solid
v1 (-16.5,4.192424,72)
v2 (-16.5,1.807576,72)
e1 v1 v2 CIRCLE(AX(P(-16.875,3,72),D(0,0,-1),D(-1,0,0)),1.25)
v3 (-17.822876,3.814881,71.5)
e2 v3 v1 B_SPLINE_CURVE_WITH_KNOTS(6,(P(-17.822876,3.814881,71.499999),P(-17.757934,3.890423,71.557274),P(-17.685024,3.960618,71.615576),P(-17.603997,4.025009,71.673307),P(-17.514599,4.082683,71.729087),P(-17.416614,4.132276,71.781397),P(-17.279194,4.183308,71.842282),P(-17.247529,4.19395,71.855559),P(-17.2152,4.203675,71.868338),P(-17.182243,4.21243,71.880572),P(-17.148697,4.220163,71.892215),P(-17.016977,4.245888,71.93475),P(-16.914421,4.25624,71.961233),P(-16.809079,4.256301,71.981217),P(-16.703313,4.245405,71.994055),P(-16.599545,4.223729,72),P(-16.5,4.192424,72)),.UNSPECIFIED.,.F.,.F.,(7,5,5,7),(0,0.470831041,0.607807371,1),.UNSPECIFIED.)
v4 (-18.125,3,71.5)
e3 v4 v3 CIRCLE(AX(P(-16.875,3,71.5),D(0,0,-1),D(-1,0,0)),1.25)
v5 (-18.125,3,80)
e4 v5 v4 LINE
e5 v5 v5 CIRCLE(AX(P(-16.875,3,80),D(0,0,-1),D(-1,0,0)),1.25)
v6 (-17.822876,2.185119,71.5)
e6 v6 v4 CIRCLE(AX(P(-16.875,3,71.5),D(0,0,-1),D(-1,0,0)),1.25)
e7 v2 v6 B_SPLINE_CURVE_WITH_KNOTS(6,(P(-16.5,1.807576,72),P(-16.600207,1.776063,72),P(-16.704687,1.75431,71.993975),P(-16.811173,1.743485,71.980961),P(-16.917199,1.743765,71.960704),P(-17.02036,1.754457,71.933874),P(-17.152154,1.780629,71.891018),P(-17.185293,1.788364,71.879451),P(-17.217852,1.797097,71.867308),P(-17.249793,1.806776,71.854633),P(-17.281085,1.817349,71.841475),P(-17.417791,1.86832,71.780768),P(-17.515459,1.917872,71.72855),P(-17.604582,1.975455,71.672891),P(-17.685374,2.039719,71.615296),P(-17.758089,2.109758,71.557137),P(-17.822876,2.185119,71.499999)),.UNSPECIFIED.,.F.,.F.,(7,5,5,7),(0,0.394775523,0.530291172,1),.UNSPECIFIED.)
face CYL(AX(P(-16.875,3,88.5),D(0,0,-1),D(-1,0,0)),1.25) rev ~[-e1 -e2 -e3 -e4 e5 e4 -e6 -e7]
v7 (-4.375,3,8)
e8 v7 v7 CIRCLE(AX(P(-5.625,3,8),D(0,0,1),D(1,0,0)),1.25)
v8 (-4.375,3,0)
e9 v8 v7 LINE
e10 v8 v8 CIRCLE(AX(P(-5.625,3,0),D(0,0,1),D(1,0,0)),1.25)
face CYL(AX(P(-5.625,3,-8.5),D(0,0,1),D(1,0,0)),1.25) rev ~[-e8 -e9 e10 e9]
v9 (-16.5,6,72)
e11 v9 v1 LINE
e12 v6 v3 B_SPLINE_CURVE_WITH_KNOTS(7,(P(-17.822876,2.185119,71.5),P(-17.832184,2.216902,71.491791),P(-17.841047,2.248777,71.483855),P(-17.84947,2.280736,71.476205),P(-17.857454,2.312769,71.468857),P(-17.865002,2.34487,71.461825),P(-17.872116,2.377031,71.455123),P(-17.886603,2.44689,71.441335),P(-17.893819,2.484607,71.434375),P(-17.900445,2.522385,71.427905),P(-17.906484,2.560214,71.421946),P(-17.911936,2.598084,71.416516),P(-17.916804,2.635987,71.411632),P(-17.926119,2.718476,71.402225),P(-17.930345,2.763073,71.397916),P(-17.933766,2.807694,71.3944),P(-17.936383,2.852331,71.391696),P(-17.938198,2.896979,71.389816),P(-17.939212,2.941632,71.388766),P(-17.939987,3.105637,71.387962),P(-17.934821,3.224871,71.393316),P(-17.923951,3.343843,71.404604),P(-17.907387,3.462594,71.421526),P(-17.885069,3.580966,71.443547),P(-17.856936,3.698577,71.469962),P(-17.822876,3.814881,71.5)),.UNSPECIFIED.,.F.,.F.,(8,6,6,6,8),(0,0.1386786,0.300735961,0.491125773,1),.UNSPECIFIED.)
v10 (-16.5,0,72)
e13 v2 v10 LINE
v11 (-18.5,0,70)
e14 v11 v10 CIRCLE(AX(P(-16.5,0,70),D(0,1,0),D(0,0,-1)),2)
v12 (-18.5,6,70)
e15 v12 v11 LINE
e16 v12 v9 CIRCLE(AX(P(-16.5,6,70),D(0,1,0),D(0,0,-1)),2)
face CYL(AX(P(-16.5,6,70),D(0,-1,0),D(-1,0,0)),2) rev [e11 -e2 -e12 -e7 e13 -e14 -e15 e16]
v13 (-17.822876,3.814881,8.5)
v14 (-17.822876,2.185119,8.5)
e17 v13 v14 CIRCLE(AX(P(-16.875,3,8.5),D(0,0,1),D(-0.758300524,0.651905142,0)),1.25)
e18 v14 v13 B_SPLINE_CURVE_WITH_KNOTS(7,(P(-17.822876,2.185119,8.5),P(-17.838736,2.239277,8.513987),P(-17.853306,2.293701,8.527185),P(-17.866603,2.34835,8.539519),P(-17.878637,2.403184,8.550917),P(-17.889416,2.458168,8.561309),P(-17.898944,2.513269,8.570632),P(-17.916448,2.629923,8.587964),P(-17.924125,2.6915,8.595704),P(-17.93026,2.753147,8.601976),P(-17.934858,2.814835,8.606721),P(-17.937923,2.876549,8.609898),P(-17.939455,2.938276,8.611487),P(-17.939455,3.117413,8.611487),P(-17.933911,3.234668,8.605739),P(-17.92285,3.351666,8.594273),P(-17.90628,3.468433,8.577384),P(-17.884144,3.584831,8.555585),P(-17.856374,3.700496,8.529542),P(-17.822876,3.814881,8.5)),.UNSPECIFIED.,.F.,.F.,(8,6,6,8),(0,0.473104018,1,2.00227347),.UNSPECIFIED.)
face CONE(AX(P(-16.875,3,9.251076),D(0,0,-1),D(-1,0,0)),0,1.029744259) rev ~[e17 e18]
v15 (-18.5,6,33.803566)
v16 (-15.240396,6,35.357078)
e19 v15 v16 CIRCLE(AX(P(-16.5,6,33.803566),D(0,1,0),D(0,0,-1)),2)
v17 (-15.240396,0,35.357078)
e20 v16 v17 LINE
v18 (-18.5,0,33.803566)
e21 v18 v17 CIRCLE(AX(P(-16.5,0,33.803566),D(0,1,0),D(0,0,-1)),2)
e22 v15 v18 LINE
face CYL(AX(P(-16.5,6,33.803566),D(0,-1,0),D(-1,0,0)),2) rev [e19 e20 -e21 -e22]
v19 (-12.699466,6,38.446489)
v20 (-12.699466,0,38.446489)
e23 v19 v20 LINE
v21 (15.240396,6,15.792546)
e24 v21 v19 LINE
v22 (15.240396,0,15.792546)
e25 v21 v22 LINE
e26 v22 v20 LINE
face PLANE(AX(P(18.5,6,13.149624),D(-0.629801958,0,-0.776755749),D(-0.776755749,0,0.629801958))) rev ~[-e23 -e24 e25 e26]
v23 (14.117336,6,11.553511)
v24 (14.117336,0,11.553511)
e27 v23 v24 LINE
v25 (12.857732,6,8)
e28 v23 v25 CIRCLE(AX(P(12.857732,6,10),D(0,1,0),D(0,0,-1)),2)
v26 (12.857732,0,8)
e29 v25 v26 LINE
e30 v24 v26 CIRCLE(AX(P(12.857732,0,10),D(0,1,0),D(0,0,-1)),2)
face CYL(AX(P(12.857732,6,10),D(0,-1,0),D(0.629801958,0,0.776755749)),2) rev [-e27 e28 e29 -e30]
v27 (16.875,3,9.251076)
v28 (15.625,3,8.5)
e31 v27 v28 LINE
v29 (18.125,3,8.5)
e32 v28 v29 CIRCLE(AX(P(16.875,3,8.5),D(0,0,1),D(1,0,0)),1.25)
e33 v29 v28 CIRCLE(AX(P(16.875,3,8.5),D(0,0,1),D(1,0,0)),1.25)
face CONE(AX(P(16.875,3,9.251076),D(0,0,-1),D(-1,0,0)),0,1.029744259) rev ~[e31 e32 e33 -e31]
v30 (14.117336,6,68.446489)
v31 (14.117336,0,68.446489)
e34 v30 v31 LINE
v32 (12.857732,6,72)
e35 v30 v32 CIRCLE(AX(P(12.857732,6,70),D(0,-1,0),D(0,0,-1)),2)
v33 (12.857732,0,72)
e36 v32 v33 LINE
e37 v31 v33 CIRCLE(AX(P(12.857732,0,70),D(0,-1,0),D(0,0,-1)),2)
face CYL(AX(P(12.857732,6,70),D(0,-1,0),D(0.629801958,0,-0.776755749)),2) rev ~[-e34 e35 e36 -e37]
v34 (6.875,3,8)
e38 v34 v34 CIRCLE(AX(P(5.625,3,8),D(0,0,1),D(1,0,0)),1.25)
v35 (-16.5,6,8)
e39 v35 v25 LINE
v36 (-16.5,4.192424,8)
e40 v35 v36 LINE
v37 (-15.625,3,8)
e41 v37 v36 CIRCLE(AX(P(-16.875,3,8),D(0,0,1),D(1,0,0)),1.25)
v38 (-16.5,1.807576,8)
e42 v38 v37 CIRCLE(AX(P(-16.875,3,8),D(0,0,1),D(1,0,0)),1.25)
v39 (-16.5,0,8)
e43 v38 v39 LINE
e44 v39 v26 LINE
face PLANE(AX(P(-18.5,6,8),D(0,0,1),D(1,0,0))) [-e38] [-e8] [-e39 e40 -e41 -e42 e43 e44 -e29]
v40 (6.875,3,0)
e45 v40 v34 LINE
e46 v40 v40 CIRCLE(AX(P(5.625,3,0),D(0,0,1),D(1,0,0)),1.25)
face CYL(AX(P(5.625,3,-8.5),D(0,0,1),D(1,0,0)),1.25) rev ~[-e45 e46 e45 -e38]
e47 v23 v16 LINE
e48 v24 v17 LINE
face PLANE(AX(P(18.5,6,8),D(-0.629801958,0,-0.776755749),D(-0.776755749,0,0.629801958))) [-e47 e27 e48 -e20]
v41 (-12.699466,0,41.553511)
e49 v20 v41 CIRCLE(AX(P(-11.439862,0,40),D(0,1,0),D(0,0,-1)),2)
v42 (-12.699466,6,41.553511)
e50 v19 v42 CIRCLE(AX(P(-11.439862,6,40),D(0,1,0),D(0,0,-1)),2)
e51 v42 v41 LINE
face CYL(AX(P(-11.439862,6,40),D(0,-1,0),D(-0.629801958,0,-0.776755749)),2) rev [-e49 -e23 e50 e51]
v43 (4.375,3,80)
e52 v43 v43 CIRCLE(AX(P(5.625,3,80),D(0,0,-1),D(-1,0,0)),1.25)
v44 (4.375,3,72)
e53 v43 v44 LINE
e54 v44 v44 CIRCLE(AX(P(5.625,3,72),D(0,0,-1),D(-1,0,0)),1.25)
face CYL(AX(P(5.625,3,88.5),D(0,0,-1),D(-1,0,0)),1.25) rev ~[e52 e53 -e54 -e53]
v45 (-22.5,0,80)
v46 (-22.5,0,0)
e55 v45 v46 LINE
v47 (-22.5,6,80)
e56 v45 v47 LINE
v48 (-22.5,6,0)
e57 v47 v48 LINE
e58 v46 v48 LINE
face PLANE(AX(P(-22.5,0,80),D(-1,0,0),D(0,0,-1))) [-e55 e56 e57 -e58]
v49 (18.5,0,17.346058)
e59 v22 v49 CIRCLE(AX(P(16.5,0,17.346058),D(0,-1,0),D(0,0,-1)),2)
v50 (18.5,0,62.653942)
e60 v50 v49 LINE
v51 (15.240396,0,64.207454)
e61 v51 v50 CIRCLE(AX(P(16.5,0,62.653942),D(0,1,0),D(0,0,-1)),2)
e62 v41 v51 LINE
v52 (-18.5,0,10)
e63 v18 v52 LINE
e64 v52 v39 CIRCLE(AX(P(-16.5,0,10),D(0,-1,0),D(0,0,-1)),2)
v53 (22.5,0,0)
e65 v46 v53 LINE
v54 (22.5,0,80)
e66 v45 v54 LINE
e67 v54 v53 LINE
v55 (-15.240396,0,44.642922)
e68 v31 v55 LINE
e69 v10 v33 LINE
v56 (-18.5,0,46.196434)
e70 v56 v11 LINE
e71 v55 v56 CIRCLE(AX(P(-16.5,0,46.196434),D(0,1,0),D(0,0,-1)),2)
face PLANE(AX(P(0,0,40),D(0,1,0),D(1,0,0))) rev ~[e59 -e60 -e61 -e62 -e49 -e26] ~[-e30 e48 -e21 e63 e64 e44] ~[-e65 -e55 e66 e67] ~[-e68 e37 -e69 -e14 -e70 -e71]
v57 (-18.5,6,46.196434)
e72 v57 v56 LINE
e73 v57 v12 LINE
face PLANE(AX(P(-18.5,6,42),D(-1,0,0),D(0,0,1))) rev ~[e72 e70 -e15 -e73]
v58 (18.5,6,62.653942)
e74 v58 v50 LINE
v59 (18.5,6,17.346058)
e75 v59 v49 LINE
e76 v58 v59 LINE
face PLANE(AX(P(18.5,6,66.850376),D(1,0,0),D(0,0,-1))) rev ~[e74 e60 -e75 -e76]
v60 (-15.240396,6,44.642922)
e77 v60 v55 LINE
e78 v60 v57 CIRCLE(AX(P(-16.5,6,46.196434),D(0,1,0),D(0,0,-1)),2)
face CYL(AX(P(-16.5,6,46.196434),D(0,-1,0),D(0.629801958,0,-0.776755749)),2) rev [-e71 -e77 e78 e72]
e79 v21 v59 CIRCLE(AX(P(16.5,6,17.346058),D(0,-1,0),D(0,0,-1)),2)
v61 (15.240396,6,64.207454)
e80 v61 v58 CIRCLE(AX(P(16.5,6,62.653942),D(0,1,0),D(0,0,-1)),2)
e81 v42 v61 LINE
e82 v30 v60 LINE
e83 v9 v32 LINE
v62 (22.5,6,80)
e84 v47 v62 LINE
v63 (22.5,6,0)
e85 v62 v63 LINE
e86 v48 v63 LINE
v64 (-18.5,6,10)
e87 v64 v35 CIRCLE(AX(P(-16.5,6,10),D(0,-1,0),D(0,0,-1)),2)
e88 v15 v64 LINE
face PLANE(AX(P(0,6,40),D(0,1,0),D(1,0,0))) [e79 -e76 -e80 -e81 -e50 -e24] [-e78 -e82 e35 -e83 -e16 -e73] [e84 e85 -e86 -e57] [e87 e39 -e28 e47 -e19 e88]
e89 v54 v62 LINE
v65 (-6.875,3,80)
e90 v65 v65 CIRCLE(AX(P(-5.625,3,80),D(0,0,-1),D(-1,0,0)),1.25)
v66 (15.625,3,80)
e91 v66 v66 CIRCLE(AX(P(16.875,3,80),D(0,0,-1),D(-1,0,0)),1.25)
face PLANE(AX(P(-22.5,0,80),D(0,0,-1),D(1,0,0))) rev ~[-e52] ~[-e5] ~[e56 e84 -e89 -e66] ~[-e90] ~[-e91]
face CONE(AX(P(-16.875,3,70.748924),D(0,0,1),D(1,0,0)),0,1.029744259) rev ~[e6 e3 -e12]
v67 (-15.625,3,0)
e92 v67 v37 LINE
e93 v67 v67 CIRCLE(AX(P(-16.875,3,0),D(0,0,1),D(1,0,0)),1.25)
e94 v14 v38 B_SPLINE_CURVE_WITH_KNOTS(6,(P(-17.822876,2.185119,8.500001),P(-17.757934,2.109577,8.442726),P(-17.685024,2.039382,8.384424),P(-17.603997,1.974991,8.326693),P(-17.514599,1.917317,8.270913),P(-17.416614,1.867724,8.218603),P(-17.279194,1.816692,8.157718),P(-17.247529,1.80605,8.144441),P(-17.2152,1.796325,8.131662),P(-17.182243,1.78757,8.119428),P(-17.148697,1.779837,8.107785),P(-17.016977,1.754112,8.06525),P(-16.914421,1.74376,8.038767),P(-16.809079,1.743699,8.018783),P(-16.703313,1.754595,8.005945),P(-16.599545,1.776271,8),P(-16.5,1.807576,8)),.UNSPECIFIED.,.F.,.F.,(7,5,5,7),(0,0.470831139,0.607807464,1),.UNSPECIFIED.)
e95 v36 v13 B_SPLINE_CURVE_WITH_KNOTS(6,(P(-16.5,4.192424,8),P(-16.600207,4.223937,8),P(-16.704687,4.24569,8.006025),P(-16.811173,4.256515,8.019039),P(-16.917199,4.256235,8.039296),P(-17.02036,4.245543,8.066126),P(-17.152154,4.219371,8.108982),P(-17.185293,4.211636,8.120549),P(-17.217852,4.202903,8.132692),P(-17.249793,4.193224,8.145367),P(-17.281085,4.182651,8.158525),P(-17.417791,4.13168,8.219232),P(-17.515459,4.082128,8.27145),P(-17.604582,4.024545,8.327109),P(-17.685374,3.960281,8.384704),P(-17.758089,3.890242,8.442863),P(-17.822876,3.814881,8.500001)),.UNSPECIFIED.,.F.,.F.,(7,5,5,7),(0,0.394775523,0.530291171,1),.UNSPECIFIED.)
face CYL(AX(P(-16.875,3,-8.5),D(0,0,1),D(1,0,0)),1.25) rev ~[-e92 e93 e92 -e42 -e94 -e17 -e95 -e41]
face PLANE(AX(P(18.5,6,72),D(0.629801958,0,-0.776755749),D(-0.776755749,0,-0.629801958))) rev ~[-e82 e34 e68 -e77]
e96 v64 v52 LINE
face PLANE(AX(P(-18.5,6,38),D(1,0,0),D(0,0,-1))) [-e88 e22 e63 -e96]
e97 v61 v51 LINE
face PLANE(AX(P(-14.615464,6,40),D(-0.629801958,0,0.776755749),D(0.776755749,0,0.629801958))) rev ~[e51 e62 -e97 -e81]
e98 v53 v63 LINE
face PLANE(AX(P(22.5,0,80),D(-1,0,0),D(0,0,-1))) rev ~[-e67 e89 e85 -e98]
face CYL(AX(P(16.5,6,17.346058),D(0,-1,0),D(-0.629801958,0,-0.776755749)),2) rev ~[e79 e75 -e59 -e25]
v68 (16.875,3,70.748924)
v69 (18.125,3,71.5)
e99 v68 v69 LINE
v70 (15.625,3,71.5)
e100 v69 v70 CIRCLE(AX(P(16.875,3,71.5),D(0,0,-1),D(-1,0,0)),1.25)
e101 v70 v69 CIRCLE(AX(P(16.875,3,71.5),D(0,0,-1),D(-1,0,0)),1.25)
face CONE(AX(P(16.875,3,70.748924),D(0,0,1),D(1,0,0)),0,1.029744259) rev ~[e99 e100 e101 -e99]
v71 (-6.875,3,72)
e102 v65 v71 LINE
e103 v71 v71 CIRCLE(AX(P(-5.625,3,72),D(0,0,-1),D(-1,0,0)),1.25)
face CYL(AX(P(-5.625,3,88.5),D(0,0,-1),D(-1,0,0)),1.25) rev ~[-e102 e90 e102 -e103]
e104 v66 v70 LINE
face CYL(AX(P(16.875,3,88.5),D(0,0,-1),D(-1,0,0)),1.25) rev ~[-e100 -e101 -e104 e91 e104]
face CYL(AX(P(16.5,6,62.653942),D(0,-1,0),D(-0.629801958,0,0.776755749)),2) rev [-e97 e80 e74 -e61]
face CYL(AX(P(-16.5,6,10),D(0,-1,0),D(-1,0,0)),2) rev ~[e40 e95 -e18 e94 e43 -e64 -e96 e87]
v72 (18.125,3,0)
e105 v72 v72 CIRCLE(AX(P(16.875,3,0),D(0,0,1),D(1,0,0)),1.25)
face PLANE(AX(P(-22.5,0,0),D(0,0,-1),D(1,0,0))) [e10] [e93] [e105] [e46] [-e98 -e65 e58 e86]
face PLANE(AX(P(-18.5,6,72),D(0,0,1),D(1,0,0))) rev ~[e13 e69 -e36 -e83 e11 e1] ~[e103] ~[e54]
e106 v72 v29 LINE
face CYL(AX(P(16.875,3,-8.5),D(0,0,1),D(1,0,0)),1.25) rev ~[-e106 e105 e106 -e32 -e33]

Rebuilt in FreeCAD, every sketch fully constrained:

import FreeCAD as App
import Part
import Sketcher

V = App.Vector
Q = App.Units.Quantity


def edges_at(feature, points):
    """Names of the edges that pass closest to the given points."""
    edges = feature.Shape.Edges
    near = lambda p: min(range(len(edges)), key=lambda i: edges[i].distToShape(Part.Vertex(*p))[0])
    return sorted({f"Edge{near(p) + 1}" for p in points})


def add_polygon(sketch, points):
    """Adds a closed chain of lines whose ends are joined by coincident constraints."""
    first, n = sketch.GeometryCount, len(points)
    for a, b in zip(points, points[1:] + points[:1]):
        sketch.addGeometry(Part.LineSegment(App.Vector(*a, 0), App.Vector(*b, 0)), False)
    for i in range(n):
        sketch.addConstraint(Sketcher.Constraint("Coincident", first + i, 2, first + (i + 1) % n, 1))

doc = App.newDocument("Part")
params = doc.addObject("Spreadsheet::Sheet", "Params")
for row, (alias, value) in enumerate([
    ("sketch1_width", "45 mm"),
    ("sketch1_height", "80 mm"),
    ("pad1_length", "6 mm"),
    ("sketch2_width", "37 mm"),
    ("sketch2_height", "30 mm"),
    ("fillet_radius", "2 mm"),
    ("sketch3_diameter", "2.5 mm"),
    ("hole_diameter", "2.5 mm"),
    ("hole_depth", "8.5 mm"),
    ("sketch4_diameter", "2.5 mm"),
    ("hole2_diameter", "2.5 mm"),
    ("hole2_depth", "8.5 mm"),
], start=1):
    params.set(f"A{row}", alias)
    params.set(f"B{row}", "=" + value)
    params.setAlias(f"B{row}", alias)

body = doc.addObject("PartDesign::Body", "Body")

# Sketch on XZ plane
sketch1 = body.newObject("Sketcher::SketchObject", "Sketch")
sketch1.AttachmentSupport = (doc.getObject("XZ_Plane"), [""])
sketch1.MapMode = "FlatFace"
add_polygon(sketch1, [(-22.5, 0), (-22.5, 80), (22.5, 80), (22.5, 0)])  # lines 0-3
sketch1.addConstraint(Sketcher.Constraint("Vertical", 0))
sketch1.addConstraint(Sketcher.Constraint("Horizontal", 1))
sketch1.addConstraint(Sketcher.Constraint("Vertical", 2))
sketch1.addConstraint(Sketcher.Constraint("Horizontal", 3))
sketch1.addConstraint(Sketcher.Constraint("Symmetric", 2, 2, 3, 2, -1, 1))
sketch1.addConstraint(Sketcher.Constraint("DistanceX", 1, 1, 1, 2, Q("45 mm")))
sketch1.addConstraint(Sketcher.Constraint("DistanceY", 0, 1, 0, 2, Q("80 mm")))
sketch1.setExpression("Constraints[9]", "Params.sketch1_width")
sketch1.setExpression("Constraints[10]", "Params.sketch1_height")
pad1 = body.newObject("PartDesign::Pad", "Pad")
pad1.Profile = sketch1
pad1.setExpression("Length", "Params.pad1_length")
pad1.Reversed = True

# Sketch on XZ plane
sketch2 = body.newObject("Sketcher::SketchObject", "Sketch001")
sketch2.AttachmentSupport = (doc.getObject("XZ_Plane"), [""])
sketch2.MapMode = "FlatFace"
sketch2.AttachmentOffset = App.Placement(V(0, 0, -6), App.Rotation())
add_polygon(sketch2, [(18.5, 8), (-18.5, 8), (-18.5, 38)])  # lines 0-2
add_polygon(sketch2, [(18.5, 72), (-18.5, 42), (-18.5, 72)])  # lines 3-5
add_polygon(sketch2, [(18.5, 13.149624), (-14.615464, 40), (18.5, 66.850376)])  # lines 6-8
sketch2.addConstraint(Sketcher.Constraint("Horizontal", 0))
sketch2.addConstraint(Sketcher.Constraint("Vertical", 1))
sketch2.addConstraint(Sketcher.Constraint("Vertical", 4))
sketch2.addConstraint(Sketcher.Constraint("Horizontal", 5))
sketch2.addConstraint(Sketcher.Constraint("Vertical", 8))
sketch2.addConstraint(Sketcher.Constraint("Parallel", 2, 6))
sketch2.addConstraint(Sketcher.Constraint("Parallel", 3, 7))
sketch2.addConstraint(Sketcher.Constraint("Vertical", 1, 2, 3, 2))
sketch2.addConstraint(Sketcher.Constraint("Vertical", 2, 2, 5, 2))
sketch2.addConstraint(Sketcher.Constraint("Vertical", 5, 2, 7, 2))
sketch2.addConstraint(Sketcher.Constraint("Equal", 1, 4))
sketch2.addConstraint(Sketcher.Constraint("DistanceX", 0, 2, 0, 1, Q("37 mm")))
sketch2.addConstraint(Sketcher.Constraint("DistanceY", 1, 1, 1, 2, Q("30 mm")))
sketch2.addConstraint(Sketcher.Constraint("DistanceY", -1, 1, 0, 2, Q("8 mm")))
sketch2.addConstraint(Sketcher.Constraint("DistanceY", -1, 1, 3, 2, Q("42 mm")))
sketch2.addConstraint(Sketcher.Constraint("DistanceY", -1, 1, 6, 2, Q("40 mm")))
sketch2.addConstraint(Sketcher.Constraint("DistanceX", 0, 2, -1, 1, Q("18.5 mm")))
sketch2.addConstraint(Sketcher.Constraint("DistanceY", 8, 2, 8, 1, Q("53.700752 mm")))
sketch2.setExpression("Constraints[20]", "Params.sketch2_width")
sketch2.setExpression("Constraints[21]", "Params.sketch2_height")
pocket1 = body.newObject("PartDesign::Pocket", "Pocket")
pocket1.Profile = sketch2
pocket1.Type = "ThroughAll"
pocket1.Reversed = True
doc.recompute()

fillet = body.newObject("PartDesign::Fillet", "Fillet")
fillet.Base = (pocket1, edges_at(pocket1, [
    (18.5, 3, 72),
    (-18.5, 3, 72),
    (-18.5, 3, 42),
    (-18.5, 3, 38),
    (-18.5, 3, 8),
    (18.5, 3, 8),
    (18.5, 3, 13.15),
    (18.5, 3, 66.85),
    (-14.615, 3, 40),
]))
fillet.setExpression("Radius", "Params.fillet_radius")

# Sketch on XY plane
sketch3 = body.newObject("Sketcher::SketchObject", "Sketch002")
sketch3.AttachmentSupport = (doc.getObject("XY_Plane"), [""])
sketch3.MapMode = "FlatFace"
sketch3.addGeometry(Part.Circle(V(16.875, 3, 0), V(0, 0, 1), 1.25), False)
sketch3.addGeometry(Part.Circle(V(5.625, 3, 0), V(0, 0, 1), 1.25), False)
sketch3.addGeometry(Part.Circle(V(-5.625, 3, 0), V(0, 0, 1), 1.25), False)
sketch3.addGeometry(Part.Circle(V(-16.875, 3, 0), V(0, 0, 1), 1.25), False)
sketch3.addConstraint(Sketcher.Constraint("Equal", 0, 1))
sketch3.addConstraint(Sketcher.Constraint("Equal", 1, 2))
sketch3.addConstraint(Sketcher.Constraint("Equal", 2, 3))
sketch3.addConstraint(Sketcher.Constraint("Symmetric", 1, 3, 2, 3, -2))
sketch3.addConstraint(Sketcher.Constraint("Symmetric", 0, 3, 3, 3, -2))
sketch3.addConstraint(Sketcher.Constraint("Horizontal", 0, 3, 1, 3))
sketch3.addConstraint(Sketcher.Constraint("Diameter", 0, Q("2.5 mm")))
sketch3.addConstraint(Sketcher.Constraint("DistanceY", -1, 1, 0, 3, Q("3 mm")))
sketch3.addConstraint(Sketcher.Constraint("DistanceX", 2, 3, 0, 3, Q("22.5 mm")))
sketch3.addConstraint(Sketcher.Constraint("DistanceX", 1, 3, 0, 3, Q("11.25 mm")))
sketch3.setExpression("Constraints[6]", "Params.sketch3_diameter")
doc.recompute()
hole = body.newObject("PartDesign::Hole", "Hole")
hole.Profile = sketch3
hole.ThreadType = "None"
hole.setExpression("Diameter", "Params.hole_diameter")
hole.DepthType = "Dimension"
hole.setExpression("Depth", "Params.hole_depth")
hole.DrillPoint = "Angled"
hole.DrillPointAngle = 118
hole.Reversed = True

# Sketch on XY plane
sketch4 = body.newObject("Sketcher::SketchObject", "Sketch003")
sketch4.AttachmentSupport = (doc.getObject("XY_Plane"), [""])
sketch4.MapMode = "FlatFace"
sketch4.AttachmentOffset = App.Placement(V(0, 0, 80), App.Rotation())
sketch4.addGeometry(Part.Circle(V(-16.875, 3, 0), V(0, 0, 1), 1.25), False)
sketch4.addGeometry(Part.Circle(V(-5.625, 3, 0), V(0, 0, 1), 1.25), False)
sketch4.addGeometry(Part.Circle(V(5.625, 3, 0), V(0, 0, 1), 1.25), False)
sketch4.addGeometry(Part.Circle(V(16.875, 3, 0), V(0, 0, 1), 1.25), False)
sketch4.addConstraint(Sketcher.Constraint("Equal", 0, 1))
sketch4.addConstraint(Sketcher.Constraint("Equal", 1, 2))
sketch4.addConstraint(Sketcher.Constraint("Equal", 2, 3))
sketch4.addConstraint(Sketcher.Constraint("Symmetric", 1, 3, 2, 3, -2))
sketch4.addConstraint(Sketcher.Constraint("Symmetric", 0, 3, 3, 3, -2))
sketch4.addConstraint(Sketcher.Constraint("Horizontal", 0, 3, 1, 3))
sketch4.addConstraint(Sketcher.Constraint("Diameter", 0, Q("2.5 mm")))
sketch4.addConstraint(Sketcher.Constraint("DistanceY", -1, 1, 0, 3, Q("3 mm")))
sketch4.addConstraint(Sketcher.Constraint("DistanceX", 0, 3, 2, 3, Q("22.5 mm")))
sketch4.addConstraint(Sketcher.Constraint("DistanceX", 0, 3, 1, 3, Q("11.25 mm")))
sketch4.setExpression("Constraints[6]", "Params.sketch4_diameter")
doc.recompute()
hole2 = body.newObject("PartDesign::Hole", "Hole001")
hole2.Profile = sketch4
hole2.ThreadType = "None"
hole2.setExpression("Diameter", "Params.hole2_diameter")
hole2.DepthType = "Dimension"
hole2.setExpression("Depth", "Params.hole2_depth")
hole2.DrillPoint = "Angled"
hole2.DrillPointAngle = 118

doc.recompute()
